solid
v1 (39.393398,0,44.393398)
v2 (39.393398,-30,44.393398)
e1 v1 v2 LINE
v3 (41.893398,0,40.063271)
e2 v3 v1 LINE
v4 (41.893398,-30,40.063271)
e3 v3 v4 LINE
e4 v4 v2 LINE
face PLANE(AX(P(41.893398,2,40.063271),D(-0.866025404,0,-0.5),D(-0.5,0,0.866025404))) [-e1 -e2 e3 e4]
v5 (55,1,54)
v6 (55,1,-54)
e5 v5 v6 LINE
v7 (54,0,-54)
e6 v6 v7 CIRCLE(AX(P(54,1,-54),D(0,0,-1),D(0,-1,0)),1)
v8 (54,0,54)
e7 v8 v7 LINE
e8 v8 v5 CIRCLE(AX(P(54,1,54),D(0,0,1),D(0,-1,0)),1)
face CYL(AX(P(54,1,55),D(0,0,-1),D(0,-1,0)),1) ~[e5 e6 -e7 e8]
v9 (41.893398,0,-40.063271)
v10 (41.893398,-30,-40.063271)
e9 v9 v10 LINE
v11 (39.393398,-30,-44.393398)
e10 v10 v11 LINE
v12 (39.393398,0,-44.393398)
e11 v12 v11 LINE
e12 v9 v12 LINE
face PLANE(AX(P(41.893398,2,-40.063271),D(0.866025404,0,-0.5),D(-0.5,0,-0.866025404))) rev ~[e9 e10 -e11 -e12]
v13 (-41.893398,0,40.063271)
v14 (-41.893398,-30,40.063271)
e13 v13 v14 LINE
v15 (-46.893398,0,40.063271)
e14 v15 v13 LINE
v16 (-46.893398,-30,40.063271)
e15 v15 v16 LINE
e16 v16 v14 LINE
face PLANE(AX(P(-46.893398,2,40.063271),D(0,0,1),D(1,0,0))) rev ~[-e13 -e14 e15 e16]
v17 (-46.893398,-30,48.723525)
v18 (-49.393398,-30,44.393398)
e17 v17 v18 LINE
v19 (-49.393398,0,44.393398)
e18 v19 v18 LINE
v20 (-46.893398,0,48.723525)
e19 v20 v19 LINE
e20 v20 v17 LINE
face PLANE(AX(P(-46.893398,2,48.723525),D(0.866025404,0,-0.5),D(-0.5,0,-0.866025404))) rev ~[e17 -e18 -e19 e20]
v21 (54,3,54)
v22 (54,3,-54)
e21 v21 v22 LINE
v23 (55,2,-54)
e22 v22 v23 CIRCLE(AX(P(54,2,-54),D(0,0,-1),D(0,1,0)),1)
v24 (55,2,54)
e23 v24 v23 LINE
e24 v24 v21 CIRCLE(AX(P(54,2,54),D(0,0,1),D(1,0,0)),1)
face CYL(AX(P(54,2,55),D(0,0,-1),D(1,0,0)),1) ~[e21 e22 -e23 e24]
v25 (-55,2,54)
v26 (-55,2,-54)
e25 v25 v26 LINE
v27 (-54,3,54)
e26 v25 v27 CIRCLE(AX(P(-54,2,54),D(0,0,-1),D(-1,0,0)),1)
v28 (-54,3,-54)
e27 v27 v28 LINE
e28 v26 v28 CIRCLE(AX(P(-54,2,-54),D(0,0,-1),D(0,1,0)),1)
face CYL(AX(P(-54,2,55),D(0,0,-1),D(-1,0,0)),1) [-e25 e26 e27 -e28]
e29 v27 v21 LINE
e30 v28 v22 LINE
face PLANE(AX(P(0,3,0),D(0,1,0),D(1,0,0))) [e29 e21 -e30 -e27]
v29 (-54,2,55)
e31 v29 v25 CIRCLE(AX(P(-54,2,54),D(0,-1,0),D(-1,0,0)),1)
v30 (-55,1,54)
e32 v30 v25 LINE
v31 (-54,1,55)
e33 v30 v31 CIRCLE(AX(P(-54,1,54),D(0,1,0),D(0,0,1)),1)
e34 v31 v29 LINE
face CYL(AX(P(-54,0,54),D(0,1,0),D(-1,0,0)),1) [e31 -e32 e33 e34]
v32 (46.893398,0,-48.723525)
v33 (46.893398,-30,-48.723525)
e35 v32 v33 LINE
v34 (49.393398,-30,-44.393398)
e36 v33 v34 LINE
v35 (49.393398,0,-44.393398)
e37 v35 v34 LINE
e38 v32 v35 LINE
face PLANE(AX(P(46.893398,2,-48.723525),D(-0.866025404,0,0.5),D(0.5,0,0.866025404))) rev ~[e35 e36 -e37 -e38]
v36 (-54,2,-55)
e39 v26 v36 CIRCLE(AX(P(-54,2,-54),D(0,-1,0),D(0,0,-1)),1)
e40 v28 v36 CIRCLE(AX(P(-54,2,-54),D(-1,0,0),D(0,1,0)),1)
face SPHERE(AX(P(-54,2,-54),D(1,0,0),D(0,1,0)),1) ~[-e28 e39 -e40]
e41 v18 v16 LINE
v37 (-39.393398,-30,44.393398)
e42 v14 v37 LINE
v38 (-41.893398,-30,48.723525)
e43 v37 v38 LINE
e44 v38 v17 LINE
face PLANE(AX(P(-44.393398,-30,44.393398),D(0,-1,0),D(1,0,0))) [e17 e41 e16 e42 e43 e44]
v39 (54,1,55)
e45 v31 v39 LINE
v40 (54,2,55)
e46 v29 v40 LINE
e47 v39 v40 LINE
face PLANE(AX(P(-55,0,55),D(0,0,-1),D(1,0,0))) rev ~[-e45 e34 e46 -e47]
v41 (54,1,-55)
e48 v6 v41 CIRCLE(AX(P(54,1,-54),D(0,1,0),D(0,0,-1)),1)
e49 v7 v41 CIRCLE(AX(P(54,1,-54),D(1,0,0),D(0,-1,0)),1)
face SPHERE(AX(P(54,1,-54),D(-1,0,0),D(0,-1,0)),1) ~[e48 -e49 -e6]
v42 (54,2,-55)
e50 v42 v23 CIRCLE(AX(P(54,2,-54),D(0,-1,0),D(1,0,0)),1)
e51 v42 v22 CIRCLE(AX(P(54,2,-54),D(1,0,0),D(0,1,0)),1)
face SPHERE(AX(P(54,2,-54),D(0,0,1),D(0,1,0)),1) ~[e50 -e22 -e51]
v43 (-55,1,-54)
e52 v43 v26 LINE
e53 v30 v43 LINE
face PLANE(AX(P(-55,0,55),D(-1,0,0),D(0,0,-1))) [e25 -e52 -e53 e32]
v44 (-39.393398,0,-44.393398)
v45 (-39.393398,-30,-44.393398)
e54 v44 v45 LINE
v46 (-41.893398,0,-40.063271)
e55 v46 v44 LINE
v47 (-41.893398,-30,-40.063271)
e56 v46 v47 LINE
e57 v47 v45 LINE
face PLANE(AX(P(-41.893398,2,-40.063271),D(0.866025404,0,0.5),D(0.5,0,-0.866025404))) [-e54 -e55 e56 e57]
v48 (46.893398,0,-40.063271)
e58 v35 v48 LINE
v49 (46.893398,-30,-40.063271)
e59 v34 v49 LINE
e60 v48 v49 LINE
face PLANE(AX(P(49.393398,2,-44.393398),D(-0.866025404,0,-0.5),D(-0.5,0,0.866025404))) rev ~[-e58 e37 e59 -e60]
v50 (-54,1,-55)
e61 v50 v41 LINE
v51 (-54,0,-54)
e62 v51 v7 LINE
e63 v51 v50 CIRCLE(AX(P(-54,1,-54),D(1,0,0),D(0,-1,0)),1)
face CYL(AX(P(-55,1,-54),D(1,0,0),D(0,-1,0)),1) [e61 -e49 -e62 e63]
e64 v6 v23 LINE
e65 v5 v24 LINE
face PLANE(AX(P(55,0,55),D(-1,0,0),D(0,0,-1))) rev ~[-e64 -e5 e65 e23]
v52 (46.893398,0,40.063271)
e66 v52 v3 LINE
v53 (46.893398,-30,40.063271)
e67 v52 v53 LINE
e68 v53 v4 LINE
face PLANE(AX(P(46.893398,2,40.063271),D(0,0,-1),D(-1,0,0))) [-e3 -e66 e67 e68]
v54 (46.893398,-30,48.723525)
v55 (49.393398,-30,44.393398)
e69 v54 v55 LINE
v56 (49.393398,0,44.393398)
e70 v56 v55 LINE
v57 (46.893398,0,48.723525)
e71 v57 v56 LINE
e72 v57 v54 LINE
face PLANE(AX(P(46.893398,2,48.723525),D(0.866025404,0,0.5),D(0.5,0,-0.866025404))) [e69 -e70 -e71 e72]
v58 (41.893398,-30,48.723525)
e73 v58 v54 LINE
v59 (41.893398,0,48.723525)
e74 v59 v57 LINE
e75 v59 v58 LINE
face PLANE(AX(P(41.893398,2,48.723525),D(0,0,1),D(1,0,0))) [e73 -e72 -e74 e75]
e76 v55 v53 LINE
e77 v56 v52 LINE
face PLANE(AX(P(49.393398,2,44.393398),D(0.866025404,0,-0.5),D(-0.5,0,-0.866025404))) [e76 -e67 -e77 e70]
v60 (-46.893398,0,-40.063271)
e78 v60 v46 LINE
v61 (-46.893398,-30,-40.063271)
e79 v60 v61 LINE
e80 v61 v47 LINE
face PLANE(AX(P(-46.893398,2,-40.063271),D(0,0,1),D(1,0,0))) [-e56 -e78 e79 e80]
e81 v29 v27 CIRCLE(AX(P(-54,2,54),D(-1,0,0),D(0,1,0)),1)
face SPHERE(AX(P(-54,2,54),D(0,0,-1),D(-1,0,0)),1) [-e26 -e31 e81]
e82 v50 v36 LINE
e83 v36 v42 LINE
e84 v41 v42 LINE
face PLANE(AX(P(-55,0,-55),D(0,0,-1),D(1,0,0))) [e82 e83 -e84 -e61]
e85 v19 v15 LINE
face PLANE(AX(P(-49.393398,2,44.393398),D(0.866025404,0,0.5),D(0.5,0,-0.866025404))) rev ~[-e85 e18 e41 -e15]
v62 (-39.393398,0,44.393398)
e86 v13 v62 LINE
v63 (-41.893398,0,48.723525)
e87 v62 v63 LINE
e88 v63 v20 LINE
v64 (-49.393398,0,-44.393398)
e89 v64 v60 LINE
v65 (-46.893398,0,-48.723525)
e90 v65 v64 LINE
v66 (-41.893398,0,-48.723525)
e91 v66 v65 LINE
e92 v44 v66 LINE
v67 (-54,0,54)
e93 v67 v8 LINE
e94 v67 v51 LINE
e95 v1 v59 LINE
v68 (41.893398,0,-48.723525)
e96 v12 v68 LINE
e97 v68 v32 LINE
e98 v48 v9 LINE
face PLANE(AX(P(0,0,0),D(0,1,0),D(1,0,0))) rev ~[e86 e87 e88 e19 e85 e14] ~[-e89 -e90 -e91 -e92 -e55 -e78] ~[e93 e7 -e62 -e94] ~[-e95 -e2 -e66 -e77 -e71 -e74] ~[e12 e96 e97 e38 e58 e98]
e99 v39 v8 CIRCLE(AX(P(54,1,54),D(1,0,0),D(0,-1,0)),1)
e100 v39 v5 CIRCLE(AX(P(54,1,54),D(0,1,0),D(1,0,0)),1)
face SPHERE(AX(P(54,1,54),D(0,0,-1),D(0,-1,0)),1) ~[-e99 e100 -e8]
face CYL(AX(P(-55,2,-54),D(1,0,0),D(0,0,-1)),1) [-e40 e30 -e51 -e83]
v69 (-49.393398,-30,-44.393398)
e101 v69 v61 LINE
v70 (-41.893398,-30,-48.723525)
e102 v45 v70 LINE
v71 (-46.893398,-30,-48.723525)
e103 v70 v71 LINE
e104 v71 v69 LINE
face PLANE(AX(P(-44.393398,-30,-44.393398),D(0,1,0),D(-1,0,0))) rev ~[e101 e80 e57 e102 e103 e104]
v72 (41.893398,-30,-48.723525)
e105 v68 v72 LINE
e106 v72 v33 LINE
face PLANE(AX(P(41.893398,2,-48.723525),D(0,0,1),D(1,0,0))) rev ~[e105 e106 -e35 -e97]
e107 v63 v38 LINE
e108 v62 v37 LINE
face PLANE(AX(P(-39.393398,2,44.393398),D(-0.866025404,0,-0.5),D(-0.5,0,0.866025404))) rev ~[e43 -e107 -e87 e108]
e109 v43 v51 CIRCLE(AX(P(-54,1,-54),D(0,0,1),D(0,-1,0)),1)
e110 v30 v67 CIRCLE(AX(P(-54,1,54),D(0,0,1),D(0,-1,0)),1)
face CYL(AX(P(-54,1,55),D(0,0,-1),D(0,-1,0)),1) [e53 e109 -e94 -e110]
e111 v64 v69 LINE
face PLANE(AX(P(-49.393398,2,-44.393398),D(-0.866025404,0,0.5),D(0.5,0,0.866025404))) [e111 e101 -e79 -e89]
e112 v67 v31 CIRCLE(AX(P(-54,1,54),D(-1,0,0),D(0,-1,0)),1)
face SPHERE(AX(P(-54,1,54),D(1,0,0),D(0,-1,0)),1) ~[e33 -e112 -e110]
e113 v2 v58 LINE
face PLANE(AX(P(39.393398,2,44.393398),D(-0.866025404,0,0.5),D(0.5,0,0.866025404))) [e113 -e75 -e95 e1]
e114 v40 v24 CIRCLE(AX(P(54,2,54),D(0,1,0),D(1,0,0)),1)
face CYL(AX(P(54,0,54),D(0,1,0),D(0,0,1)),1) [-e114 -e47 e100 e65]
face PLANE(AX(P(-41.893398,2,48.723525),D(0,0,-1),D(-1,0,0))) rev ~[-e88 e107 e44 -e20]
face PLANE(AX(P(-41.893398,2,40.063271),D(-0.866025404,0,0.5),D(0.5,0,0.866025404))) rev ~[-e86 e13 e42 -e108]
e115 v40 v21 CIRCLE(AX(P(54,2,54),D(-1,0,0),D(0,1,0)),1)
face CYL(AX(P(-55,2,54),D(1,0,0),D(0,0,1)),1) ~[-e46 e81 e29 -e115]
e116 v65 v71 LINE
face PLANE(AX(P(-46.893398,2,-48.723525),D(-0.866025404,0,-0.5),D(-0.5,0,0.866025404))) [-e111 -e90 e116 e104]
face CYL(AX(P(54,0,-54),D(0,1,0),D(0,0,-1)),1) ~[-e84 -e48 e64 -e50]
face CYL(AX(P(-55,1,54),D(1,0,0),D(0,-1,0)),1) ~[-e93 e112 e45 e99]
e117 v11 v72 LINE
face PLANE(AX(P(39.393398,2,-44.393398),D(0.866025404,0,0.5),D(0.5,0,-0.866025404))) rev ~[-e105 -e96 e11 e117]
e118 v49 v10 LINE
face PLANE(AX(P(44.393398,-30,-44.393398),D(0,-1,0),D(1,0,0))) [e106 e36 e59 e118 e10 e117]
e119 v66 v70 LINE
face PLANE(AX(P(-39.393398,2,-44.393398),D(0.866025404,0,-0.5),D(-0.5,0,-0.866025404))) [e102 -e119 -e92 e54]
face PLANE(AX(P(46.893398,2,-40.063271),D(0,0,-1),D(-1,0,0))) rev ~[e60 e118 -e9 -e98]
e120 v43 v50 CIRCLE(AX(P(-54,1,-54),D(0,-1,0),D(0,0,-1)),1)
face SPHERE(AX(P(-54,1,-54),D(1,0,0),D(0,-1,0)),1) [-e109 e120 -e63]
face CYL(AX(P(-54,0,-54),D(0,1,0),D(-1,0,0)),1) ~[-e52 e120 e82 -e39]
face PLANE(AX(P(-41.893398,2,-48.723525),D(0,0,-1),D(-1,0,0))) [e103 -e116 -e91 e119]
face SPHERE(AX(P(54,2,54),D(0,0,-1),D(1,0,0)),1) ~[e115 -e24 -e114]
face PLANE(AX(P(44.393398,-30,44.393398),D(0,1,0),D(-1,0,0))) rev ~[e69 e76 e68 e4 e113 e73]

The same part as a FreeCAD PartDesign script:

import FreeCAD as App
import Part
import Sketcher
Q = App.Units.Quantity


def edges_at(feature, points):
    """Names of the edges that pass closest to the given points."""
    edges = feature.Shape.Edges
    near = lambda p: min(range(len(edges)), key=lambda i: edges[i].distToShape(Part.Vertex(*p))[0])
    return sorted({f"Edge{near(p) + 1}" for p in points})

doc = App.newDocument("Part")
body = doc.addObject("PartDesign::Body", "Body")

sketch1 = body.newObject("Sketcher::SketchObject", "Sketch")
sketch1.AttachmentSupport = (doc.getObject("XZ_Plane"), [""])
sketch1.MapMode = "FlatFace"
sketch1.addGeometry([
    Part.LineSegment(App.Vector(-55, -55, 0), App.Vector(-55, 55, 0)),
    Part.LineSegment(App.Vector(-55, 55, 0), App.Vector(55, 55, 0)),
    Part.LineSegment(App.Vector(55, 55, 0), App.Vector(55, -55, 0)),
    Part.LineSegment(App.Vector(55, -55, 0), App.Vector(-55, -55, 0)),
], False)
sketch1.addConstraint([
    Sketcher.Constraint("Coincident", 0, 2, 1, 1),
    Sketcher.Constraint("Coincident", 1, 2, 2, 1),
    Sketcher.Constraint("Coincident", 2, 2, 3, 1),
    Sketcher.Constraint("Coincident", 3, 2, 0, 1),
    Sketcher.Constraint("Vertical", 0),
    Sketcher.Constraint("Horizontal", 1),
    Sketcher.Constraint("Vertical", 2),
    Sketcher.Constraint("Horizontal", 3),
    Sketcher.Constraint("Symmetric", 0, 2, 2, 2, -1, 1),
    Sketcher.Constraint("Equal", 3, 0),
    Sketcher.Constraint("DistanceX", 1, 1, 1, 2, Q("110 mm")),
])
pad1 = body.newObject("PartDesign::Pad", "Pad")
pad1.Profile = sketch1
pad1.Length = 3
pad1.Reversed = True

sketch2 = body.newObject("Sketcher::SketchObject", "Sketch001")
sketch2.AttachmentSupport = (doc.getObject("XZ_Plane"), [""])
sketch2.MapMode = "FlatFace"
sketch2.AttachmentOffset = App.Placement(App.Vector(0, 0, -2), App.Rotation())
sketch2.addGeometry([
    Part.LineSegment(App.Vector(-39, 44, 0), App.Vector(-42, 49, 0)),
    Part.LineSegment(App.Vector(-42, 49, 0), App.Vector(-47, 49, 0)),
    Part.LineSegment(App.Vector(-47, 49, 0), App.Vector(-49, 44, 0)),
    Part.LineSegment(App.Vector(-49, 44, 0), App.Vector(-47, 40, 0)),
    Part.LineSegment(App.Vector(-47, 40, 0), App.Vector(-42, 40, 0)),
    Part.LineSegment(App.Vector(-42, 40, 0), App.Vector(-39, 44, 0)),
    Part.LineSegment(App.Vector(39, 44, 0), App.Vector(42, 40, 0)),
    Part.LineSegment(App.Vector(42, 40, 0), App.Vector(47, 40, 0)),
    Part.LineSegment(App.Vector(47, 40, 0), App.Vector(49, 44, 0)),
    Part.LineSegment(App.Vector(49, 44, 0), App.Vector(47, 49, 0)),
    Part.LineSegment(App.Vector(47, 49, 0), App.Vector(42, 49, 0)),
    Part.LineSegment(App.Vector(42, 49, 0), App.Vector(39, 44, 0)),
    Part.LineSegment(App.Vector(39, -44, 0), App.Vector(42, -49, 0)),
    Part.LineSegment(App.Vector(42, -49, 0), App.Vector(47, -49, 0)),
    Part.LineSegment(App.Vector(47, -49, 0), App.Vector(49, -44, 0)),
    Part.LineSegment(App.Vector(49, -44, 0), App.Vector(47, -40, 0)),
    Part.LineSegment(App.Vector(47, -40, 0), App.Vector(42, -40, 0)),
    Part.LineSegment(App.Vector(42, -40, 0), App.Vector(39, -44, 0)),
    Part.LineSegment(App.Vector(-39, -44, 0), App.Vector(-42, -40, 0)),
    Part.LineSegment(App.Vector(-42, -40, 0), App.Vector(-47, -40, 0)),
    Part.LineSegment(App.Vector(-47, -40, 0), App.Vector(-49, -44, 0)),
    Part.LineSegment(App.Vector(-49, -44, 0), App.Vector(-47, -49, 0)),
    Part.LineSegment(App.Vector(-47, -49, 0), App.Vector(-42, -49, 0)),
    Part.LineSegment(App.Vector(-42, -49, 0), App.Vector(-39, -44, 0)),
], False)
sketch2.addConstraint([
    Sketcher.Constraint("Coincident", 0, 2, 1, 1),
    Sketcher.Constraint("Coincident", 1, 2, 2, 1),
    Sketcher.Constraint("Coincident", 2, 2, 3, 1),
    Sketcher.Constraint("Coincident", 3, 2, 4, 1),
    Sketcher.Constraint("Coincident", 4, 2, 5, 1),
    Sketcher.Constraint("Coincident", 5, 2, 0, 1),
    Sketcher.Constraint("Coincident", 6, 2, 7, 1),
    Sketcher.Constraint("Coincident", 7, 2, 8, 1),
    Sketcher.Constraint("Coincident", 8, 2, 9, 1),
    Sketcher.Constraint("Coincident", 9, 2, 10, 1),
    Sketcher.Constraint("Coincident", 10, 2, 11, 1),
    Sketcher.Constraint("Coincident", 11, 2, 6, 1),
    Sketcher.Constraint("Coincident", 12, 2, 13, 1),
    Sketcher.Constraint("Coincident", 13, 2, 14, 1),
    Sketcher.Constraint("Coincident", 14, 2, 15, 1),
    Sketcher.Constraint("Coincident", 15, 2, 16, 1),
    Sketcher.Constraint("Coincident", 16, 2, 17, 1),
    Sketcher.Constraint("Coincident", 17, 2, 12, 1),
    Sketcher.Constraint("Coincident", 18, 2, 19, 1),
    Sketcher.Constraint("Coincident", 19, 2, 20, 1),
    Sketcher.Constraint("Coincident", 20, 2, 21, 1),
    Sketcher.Constraint("Coincident", 21, 2, 22, 1),
    Sketcher.Constraint("Coincident", 22, 2, 23, 1),
    Sketcher.Constraint("Coincident", 23, 2, 18, 1),
    Sketcher.Constraint("Horizontal", 1),
    Sketcher.Constraint("Horizontal", 4),
    Sketcher.Constraint("Horizontal", 7),
    Sketcher.Constraint("Horizontal", 10),
    Sketcher.Constraint("Horizontal", 13),
    Sketcher.Constraint("Horizontal", 16),
    Sketcher.Constraint("Horizontal", 19),
    Sketcher.Constraint("Horizontal", 22),
    Sketcher.Constraint("Symmetric", 0, 2, 12, 2, -1, 1),
    Sketcher.Constraint("Symmetric", 2, 2, 14, 2, -1, 1),
    Sketcher.Constraint("Symmetric", 3, 2, 15, 2, -1, 1),
    Sketcher.Constraint("Symmetric", 5, 2, 17, 2, -1, 1),
    Sketcher.Constraint("Symmetric", 6, 2, 18, 2, -1, 1),
    Sketcher.Constraint("Symmetric", 8, 2, 20, 2, -1, 1),
    Sketcher.Constraint("Symmetric", 9, 2, 21, 2, -1, 1),
    Sketcher.Constraint("Symmetric", 11, 2, 23, 2, -1, 1),
    Sketcher.Constraint("Symmetric", 4, 2, 6, 2, -2),
    Sketcher.Constraint("Symmetric", 2, 2, 8, 2, -2),
    Sketcher.Constraint("Symmetric", 1, 2, 9, 2, -2),
    Sketcher.Constraint("Symmetric", 5, 2, 11, 2, -2),
    Sketcher.Constraint("Parallel", 0, 3),
    Sketcher.Constraint("Parallel", 2, 5),
    Sketcher.Constraint("Parallel", 3, 6),
    Sketcher.Constraint("Parallel", 5, 8),
    Sketcher.Constraint("Parallel", 8, 11),
    Sketcher.Constraint("Parallel", 11, 14),
    Sketcher.Constraint("Parallel", 14, 17),
    Sketcher.Constraint("Parallel", 17, 20),
    Sketcher.Constraint("Parallel", 20, 23),
    Sketcher.Constraint("Horizontal", 2, 2, 5, 2),
    Sketcher.Constraint("Vertical", 1, 2, 3, 2),
    Sketcher.Constraint("DistanceX", 1, 2, 1, 1, Q("5 mm")),
    Sketcher.Constraint("Angle", 0, Q("120 deg")),
    Sketcher.Constraint("Distance", 0, Q("5 mm")),
    Sketcher.Constraint("DistanceX", 0, 2, -1, 1, Q("41.893398 mm")),
    Sketcher.Constraint("DistanceY", -1, 1, 2, 2, Q("44.393398 mm")),
])
pad2 = body.newObject("PartDesign::Pad", "Pad001")
pad2.Profile = sketch2
pad2.Length = 32
doc.recompute()

fillet = body.newObject("PartDesign::Fillet", "Fillet")
fillet.Base = (pad2, edges_at(pad2, [
    (55, 3, 0),
    (0, 3, -55),
    (-55, 3, 0),
    (0, 0, -55),
    (55, 0, 0),
    (0, 0, 55),
    (-55, 0, 0),
    (-55, 1.5, -55),
    (55, 1.5, -55),
    (55, 1.5, 55),
    (-55, 1.5, 55),
    (0, 3, 55),
]))
fillet.Radius = 1

doc.recompute()
